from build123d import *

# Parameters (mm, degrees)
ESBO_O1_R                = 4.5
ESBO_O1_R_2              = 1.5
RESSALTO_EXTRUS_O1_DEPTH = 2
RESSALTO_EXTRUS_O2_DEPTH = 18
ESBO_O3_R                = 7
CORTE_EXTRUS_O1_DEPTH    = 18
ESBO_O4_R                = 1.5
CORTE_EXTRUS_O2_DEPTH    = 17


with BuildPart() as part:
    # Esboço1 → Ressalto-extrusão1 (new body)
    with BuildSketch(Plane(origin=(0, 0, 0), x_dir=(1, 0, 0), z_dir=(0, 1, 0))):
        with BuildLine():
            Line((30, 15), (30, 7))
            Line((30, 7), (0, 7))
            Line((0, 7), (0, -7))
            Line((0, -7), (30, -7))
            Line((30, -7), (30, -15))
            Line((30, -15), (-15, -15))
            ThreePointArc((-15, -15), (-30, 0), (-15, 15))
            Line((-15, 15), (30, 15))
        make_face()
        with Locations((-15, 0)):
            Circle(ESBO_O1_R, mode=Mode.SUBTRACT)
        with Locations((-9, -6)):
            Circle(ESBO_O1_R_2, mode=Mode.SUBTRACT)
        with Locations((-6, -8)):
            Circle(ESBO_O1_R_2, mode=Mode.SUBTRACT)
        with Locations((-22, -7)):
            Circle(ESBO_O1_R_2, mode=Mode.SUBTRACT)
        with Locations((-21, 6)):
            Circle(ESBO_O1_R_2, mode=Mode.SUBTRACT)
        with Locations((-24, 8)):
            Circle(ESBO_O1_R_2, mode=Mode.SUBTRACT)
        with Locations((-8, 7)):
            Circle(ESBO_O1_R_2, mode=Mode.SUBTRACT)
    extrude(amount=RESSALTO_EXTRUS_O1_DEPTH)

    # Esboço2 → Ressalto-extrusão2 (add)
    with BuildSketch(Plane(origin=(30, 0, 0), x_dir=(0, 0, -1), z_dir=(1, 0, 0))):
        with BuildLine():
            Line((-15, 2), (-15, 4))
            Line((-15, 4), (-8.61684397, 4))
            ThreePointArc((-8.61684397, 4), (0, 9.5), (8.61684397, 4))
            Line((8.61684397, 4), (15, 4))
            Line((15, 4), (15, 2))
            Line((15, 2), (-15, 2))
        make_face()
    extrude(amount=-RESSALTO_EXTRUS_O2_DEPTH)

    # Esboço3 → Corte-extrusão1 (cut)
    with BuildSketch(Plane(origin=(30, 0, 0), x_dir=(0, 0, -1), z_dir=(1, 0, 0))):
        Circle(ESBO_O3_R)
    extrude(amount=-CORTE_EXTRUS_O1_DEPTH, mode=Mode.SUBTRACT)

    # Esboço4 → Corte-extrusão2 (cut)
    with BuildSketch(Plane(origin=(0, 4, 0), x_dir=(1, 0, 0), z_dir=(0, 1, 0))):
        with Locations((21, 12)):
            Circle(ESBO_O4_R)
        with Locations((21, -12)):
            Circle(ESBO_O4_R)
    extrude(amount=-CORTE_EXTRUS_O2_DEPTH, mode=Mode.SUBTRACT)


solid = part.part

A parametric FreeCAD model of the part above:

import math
import FreeCAD as App
import Part
import Sketcher
Q = App.Units.Quantity

doc = App.newDocument("Part")
body = doc.addObject("PartDesign::Body", "Body")

sketch1 = body.newObject("Sketcher::SketchObject", "Sketch")
sketch1.AttachmentSupport = (doc.getObject("XZ_Plane"), [""])
sketch1.MapMode = "FlatFace"
sketch1.addGeometry([
    Part.LineSegment(App.Vector(30, -7, 0), App.Vector(30, -15, 0)),
    Part.LineSegment(App.Vector(30, -15, 0), App.Vector(-15, -15, 0)),
    Part.ArcOfCircle(Part.Circle(App.Vector(-15, 0, 0), App.Vector(0, 0, 1), 15), math.radians(90), math.radians(270)),
    Part.LineSegment(App.Vector(-15, 15, 0), App.Vector(30, 15, 0)),
    Part.LineSegment(App.Vector(30, 15, 0), App.Vector(30, 7, 0)),
    Part.LineSegment(App.Vector(30, 7, 0), App.Vector(0, 7, 0)),
    Part.LineSegment(App.Vector(0, 7, 0), App.Vector(0, -7, 0)),
    Part.LineSegment(App.Vector(0, -7, 0), App.Vector(30, -7, 0)),
    Part.Circle(App.Vector(-6, 8, 0), App.Vector(0, 0, 1), 1.5),
    Part.Circle(App.Vector(-9, 6, 0), App.Vector(0, 0, 1), 1.5),
    Part.Circle(App.Vector(-22, 7, 0), App.Vector(0, 0, 1), 1.5),
    Part.Circle(App.Vector(-8, -7, 0), App.Vector(0, 0, 1), 1.5),
    Part.Circle(App.Vector(-15, 0, 0), App.Vector(0, 0, 1), 4.5),
    Part.Circle(App.Vector(-21, -6, 0), App.Vector(0, 0, 1), 1.5),
    Part.Circle(App.Vector(-24, -8, 0), App.Vector(0, 0, 1), 1.5),
], False)
sketch1.addConstraint([
    Sketcher.Constraint("Coincident", 0, 2, 1, 1),
    Sketcher.Constraint("Tangent", 1, 2, 2, 2),
    Sketcher.Constraint("Tangent", 2, 1, 3, 1),
    Sketcher.Constraint("Coincident", 3, 2, 4, 1),
    Sketcher.Constraint("Coincident", 4, 2, 5, 1),
    Sketcher.Constraint("Coincident", 5, 2, 6, 1),
    Sketcher.Constraint("Coincident", 6, 2, 7, 1),
    Sketcher.Constraint("Coincident", 7, 2, 0, 1),
    Sketcher.Constraint("Vertical", 0),
    Sketcher.Constraint("Horizontal", 1),
    Sketcher.Constraint("Horizontal", 3),
    Sketcher.Constraint("Vertical", 4),
    Sketcher.Constraint("Horizontal", 5),
    Sketcher.Constraint("Vertical", 6),
    Sketcher.Constraint("Horizontal", 7),
    Sketcher.Constraint("Coincident", 12, 3, 2, 3),
    Sketcher.Constraint("Equal", 8, 9),
    Sketcher.Constraint("Equal", 9, 10),
    Sketcher.Constraint("Equal", 10, 11),
    Sketcher.Constraint("Equal", 11, 13),
    Sketcher.Constraint("Equal", 13, 14),
    Sketcher.Constraint("Symmetric", 5, 2, 6, 2, -1, 1),
    Sketcher.Constraint("Symmetric", 0, 2, 3, 2, -1),
    Sketcher.Constraint("Horizontal", 10, 3, 4, 2),
    Sketcher.Constraint("Horizontal", 11, 3, 6, 2),
    Sketcher.Constraint("Diameter", 8, Q("3 mm")),
    Sketcher.Constraint("Diameter", 12, Q("9 mm")),
    Sketcher.Constraint("Radius", 2, Q("15 mm")),
    Sketcher.Constraint("DistanceX", 1, 2, 1, 1, Q("45 mm")),
    Sketcher.Constraint("DistanceX", 5, 2, 5, 1, Q("30 mm")),
    Sketcher.Constraint("DistanceY", 0, 2, 0, 1, Q("8 mm")),
    Sketcher.Constraint("DistanceX", 8, 3, -1, 1, Q("6 mm")),
    Sketcher.Constraint("DistanceY", -1, 1, 8, 3, Q("8 mm")),
    Sketcher.Constraint("DistanceX", 9, 3, -1, 1, Q("9 mm")),
    Sketcher.Constraint("DistanceY", -1, 1, 9, 3, Q("6 mm")),
    Sketcher.Constraint("DistanceX", 10, 3, -1, 1, Q("22 mm")),
    Sketcher.Constraint("DistanceX", 11, 3, -1, 1, Q("8 mm")),
    Sketcher.Constraint("DistanceX", 13, 3, -1, 1, Q("21 mm")),
    Sketcher.Constraint("DistanceY", 13, 3, -1, 1, Q("6 mm")),
    Sketcher.Constraint("DistanceX", 14, 3, -1, 1, Q("24 mm")),
    Sketcher.Constraint("DistanceY", 14, 3, -1, 1, Q("8 mm")),
])
pad1 = body.newObject("PartDesign::Pad", "Pad")
pad1.Profile = sketch1
pad1.Length = 2
pad1.Reversed = True

sketch2 = body.newObject("Sketcher::SketchObject", "Sketch001")
sketch2.AttachmentSupport = (doc.getObject("YZ_Plane"), [""])
sketch2.MapMode = "FlatFace"
sketch2.AttachmentOffset = App.Placement(App.Vector(0, 0, 30), App.Rotation())
sketch2.addGeometry([
    Part.LineSegment(App.Vector(4, 15, 0), App.Vector(2, 15, 0)),
    Part.LineSegment(App.Vector(2, 15, 0), App.Vector(2, -15, 0)),
    Part.LineSegment(App.Vector(2, -15, 0), App.Vector(4, -15, 0)),
    Part.LineSegment(App.Vector(4, -15, 0), App.Vector(4, -8.6, 0)),
    Part.ArcOfCircle(Part.Circle(App.Vector(0, 0, 0), App.Vector(0, 0, 1), 9.5), math.radians(-65), math.radians(65)),
    Part.LineSegment(App.Vector(4, 8.6, 0), App.Vector(4, 15, 0)),
], False)
sketch2.addConstraint([
    Sketcher.Constraint("Coincident", 0, 2, 1, 1),
    Sketcher.Constraint("Coincident", 1, 2, 2, 1),
    Sketcher.Constraint("Coincident", 2, 2, 3, 1),
    Sketcher.Constraint("Coincident", 3, 2, 4, 1),
    Sketcher.Constraint("Coincident", 4, 2, 5, 1),
    Sketcher.Constraint("Coincident", 5, 2, 0, 1),
    Sketcher.Constraint("Horizontal", 0),
    Sketcher.Constraint("Vertical", 1),
    Sketcher.Constraint("Horizontal", 2),
    Sketcher.Constraint("Vertical", 3),
    Sketcher.Constraint("Vertical", 5),
    Sketcher.Constraint("Coincident", 4, 3, -1, 1),
    Sketcher.Constraint("Symmetric", 2, 2, 5, 2, -1),
    Sketcher.Constraint("Radius", 4, Q("9.5 mm")),
    Sketcher.Constraint("DistanceX", 0, 2, 0, 1, Q("2 mm")),
    Sketcher.Constraint("DistanceY", 1, 2, 1, 1, Q("30 mm")),
    Sketcher.Constraint("DistanceX", -1, 1, 0, 2, Q("2 mm")),
])
pad2 = body.newObject("PartDesign::Pad", "Pad001")
pad2.Profile = sketch2
pad2.Length = 18
pad2.Reversed = True

sketch3 = body.newObject("Sketcher::SketchObject", "Sketch002")
sketch3.AttachmentSupport = (doc.getObject("YZ_Plane"), [""])
sketch3.MapMode = "FlatFace"
sketch3.AttachmentOffset = App.Placement(App.Vector(0, 0, 30), App.Rotation())
sketch3.addGeometry(Part.Circle(App.Vector(0, 0, 0), App.Vector(0, 0, 1), 7), False)
sketch3.addConstraint([
    Sketcher.Constraint("Coincident", 0, 3, -1, 1),
    Sketcher.Constraint("Diameter", 0, Q("14 mm")),
])
pocket1 = body.newObject("PartDesign::Pocket", "Pocket")
pocket1.Profile = sketch3
pocket1.Length = 18

sketch4 = body.newObject("Sketcher::SketchObject", "Sketch003")
sketch4.AttachmentSupport = (doc.getObject("XZ_Plane"), [""])
sketch4.MapMode = "FlatFace"
sketch4.AttachmentOffset = App.Placement(App.Vector(0, 0, -4), App.Rotation())
sketch4.addGeometry([
    Part.Circle(App.Vector(21, -12, 0), App.Vector(0, 0, 1), 1.5),
    Part.Circle(App.Vector(21, 12, 0), App.Vector(0, 0, 1), 1.5),
], False)
sketch4.addConstraint([
    Sketcher.Constraint("Equal", 0, 1),
    Sketcher.Constraint("Symmetric", 0, 3, 1, 3, -1),
    Sketcher.Constraint("Diameter", 0, Q("3 mm")),
    Sketcher.Constraint("DistanceX", -1, 1, 0, 3, Q("21 mm")),
    Sketcher.Constraint("DistanceY", 0, 3, -1, 1, Q("12 mm")),
])
pocket2 = body.newObject("PartDesign::Pocket", "Pocket001")
pocket2.Profile = sketch4
pocket2.Length = 17
pocket2.Reversed = True

doc.recompute()
